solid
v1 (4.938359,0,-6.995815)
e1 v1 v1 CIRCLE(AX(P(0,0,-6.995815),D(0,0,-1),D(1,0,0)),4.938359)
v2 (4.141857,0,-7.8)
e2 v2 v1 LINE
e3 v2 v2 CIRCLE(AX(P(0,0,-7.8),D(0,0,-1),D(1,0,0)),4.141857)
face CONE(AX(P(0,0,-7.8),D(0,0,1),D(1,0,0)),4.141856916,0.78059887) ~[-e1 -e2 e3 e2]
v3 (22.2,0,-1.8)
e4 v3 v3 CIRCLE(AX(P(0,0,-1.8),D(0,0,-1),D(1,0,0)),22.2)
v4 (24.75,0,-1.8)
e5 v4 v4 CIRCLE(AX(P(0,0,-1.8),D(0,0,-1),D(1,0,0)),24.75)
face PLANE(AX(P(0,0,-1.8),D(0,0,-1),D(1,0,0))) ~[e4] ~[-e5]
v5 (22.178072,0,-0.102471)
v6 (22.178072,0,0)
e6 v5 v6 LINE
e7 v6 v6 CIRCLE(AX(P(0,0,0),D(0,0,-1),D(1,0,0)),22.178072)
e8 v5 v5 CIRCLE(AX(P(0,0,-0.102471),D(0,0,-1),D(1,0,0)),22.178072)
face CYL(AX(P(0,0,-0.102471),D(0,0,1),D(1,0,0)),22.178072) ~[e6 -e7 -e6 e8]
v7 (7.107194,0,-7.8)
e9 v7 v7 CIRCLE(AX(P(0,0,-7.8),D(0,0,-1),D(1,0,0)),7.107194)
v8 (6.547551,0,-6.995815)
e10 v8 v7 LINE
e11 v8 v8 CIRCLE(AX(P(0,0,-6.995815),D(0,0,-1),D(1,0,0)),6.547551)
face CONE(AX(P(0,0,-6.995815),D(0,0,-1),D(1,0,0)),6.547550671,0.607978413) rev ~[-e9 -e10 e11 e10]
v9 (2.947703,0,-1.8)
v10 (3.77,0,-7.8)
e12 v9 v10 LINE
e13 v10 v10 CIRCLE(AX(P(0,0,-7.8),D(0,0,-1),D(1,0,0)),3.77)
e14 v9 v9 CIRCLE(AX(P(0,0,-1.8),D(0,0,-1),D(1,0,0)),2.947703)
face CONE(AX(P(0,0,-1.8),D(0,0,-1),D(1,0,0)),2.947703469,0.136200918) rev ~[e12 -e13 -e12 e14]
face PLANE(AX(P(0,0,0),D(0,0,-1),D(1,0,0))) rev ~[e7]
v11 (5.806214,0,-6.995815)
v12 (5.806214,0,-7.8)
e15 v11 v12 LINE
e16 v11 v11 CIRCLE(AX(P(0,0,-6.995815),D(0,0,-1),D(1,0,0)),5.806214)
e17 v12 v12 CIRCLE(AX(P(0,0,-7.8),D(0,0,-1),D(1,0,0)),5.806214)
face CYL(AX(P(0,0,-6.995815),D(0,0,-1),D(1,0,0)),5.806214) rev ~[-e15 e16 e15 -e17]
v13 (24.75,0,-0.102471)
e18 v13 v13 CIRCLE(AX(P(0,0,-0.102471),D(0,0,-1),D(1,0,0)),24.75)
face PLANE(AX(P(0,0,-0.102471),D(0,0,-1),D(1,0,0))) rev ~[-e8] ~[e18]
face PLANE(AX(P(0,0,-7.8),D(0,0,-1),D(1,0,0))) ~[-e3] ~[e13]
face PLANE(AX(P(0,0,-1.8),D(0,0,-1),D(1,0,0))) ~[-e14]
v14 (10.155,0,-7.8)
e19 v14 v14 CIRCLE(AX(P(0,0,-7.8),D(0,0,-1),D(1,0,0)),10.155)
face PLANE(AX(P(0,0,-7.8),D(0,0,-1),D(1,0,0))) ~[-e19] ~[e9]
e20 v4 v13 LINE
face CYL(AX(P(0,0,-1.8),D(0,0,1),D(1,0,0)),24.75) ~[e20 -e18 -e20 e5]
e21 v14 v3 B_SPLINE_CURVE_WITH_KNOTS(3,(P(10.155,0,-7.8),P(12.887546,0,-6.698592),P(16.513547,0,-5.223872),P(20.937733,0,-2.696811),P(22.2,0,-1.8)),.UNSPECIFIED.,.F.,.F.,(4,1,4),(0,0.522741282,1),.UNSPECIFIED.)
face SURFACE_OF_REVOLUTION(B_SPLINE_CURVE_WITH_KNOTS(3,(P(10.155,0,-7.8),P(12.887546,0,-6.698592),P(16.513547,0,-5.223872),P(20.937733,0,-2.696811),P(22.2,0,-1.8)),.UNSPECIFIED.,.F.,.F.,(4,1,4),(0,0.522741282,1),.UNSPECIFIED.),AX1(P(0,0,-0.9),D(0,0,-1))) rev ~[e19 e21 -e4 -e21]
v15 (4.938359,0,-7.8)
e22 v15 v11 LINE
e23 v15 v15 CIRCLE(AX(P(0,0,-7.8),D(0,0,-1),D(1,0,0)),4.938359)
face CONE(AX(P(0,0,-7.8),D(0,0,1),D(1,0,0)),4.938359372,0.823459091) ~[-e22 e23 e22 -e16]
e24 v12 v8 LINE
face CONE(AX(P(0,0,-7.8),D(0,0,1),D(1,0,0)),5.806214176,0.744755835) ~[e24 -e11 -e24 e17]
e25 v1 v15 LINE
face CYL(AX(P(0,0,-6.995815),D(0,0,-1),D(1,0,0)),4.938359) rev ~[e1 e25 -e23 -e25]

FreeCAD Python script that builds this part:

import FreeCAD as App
import Part
import Sketcher
from FreeCAD import Vector

doc = App.newDocument("Part")
body = doc.addObject("PartDesign::Body", "Body")

sketch1 = body.newObject("Sketcher::SketchObject", "Sketch")
sketch1.AttachmentSupport = (doc.getObject("XZ_Plane"), [""])
sketch1.MapMode = "FlatFace"
sketch1.addGeometry([
    Part.LineSegment(Vector(22.178072, 0, 0), Vector(0, 0, 0)),
    Part.LineSegment(Vector(0, 0, 0), Vector(0, -1.8, 0)),
    Part.LineSegment(Vector(0, -1.8, 0), Vector(2.947703, -1.8, 0)),
    Part.LineSegment(Vector(2.947703, -1.8, 0), Vector(3.77, -7.8, 0)),
    Part.LineSegment(Vector(3.77, -7.8, 0), Vector(4.141857, -7.8, 0)),
    Part.LineSegment(Vector(4.141857, -7.8, 0), Vector(4.938359, -6.995815, 0)),
    Part.LineSegment(Vector(4.938359, -6.995815, 0), Vector(4.938359, -7.8, 0)),
    Part.LineSegment(Vector(4.938359, -7.8, 0), Vector(5.806214, -6.995815, 0)),
    Part.LineSegment(Vector(5.806214, -6.995815, 0), Vector(5.806214, -7.8, 0)),
    Part.LineSegment(Vector(5.806214, -7.8, 0), Vector(6.547551, -6.995815, 0)),
    Part.LineSegment(Vector(6.547551, -6.995815, 0), Vector(7.107194, -7.8, 0)),
    Part.LineSegment(Vector(7.107194, -7.8, 0), Vector(10.155, -7.8, 0)),
    Part.BSplineCurve([Vector(10.155, -7.8, 0), Vector(12.887546, -6.698592, 0), Vector(16.513547, -5.223872, 0), Vector(20.937733, -2.696811, 0), Vector(22.2, -1.8, 0)], [4, 1, 4], [0, 0.522741282, 1], False, 3, [1, 1, 1, 1, 1], False),
    Part.LineSegment(Vector(22.2, -1.8, 0), Vector(24.75, -1.8, 0)),
    Part.LineSegment(Vector(24.75, -1.8, 0), Vector(24.75, -0.102471, 0)),
    Part.LineSegment(Vector(24.75, -0.102471, 0), Vector(22.178072, -0.102471, 0)),
    Part.LineSegment(Vector(22.178072, -0.102471, 0), Vector(22.178072, 0, 0)),
], False)
sketch1.addConstraint([
    Sketcher.Constraint("Block", 12),
    Sketcher.Constraint("Coincident", 0, 2, 1, 1),
    Sketcher.Constraint("Coincident", 1, 2, 2, 1),
    Sketcher.Constraint("Coincident", 2, 2, 3, 1),
    Sketcher.Constraint("Coincident", 3, 2, 4, 1),
    Sketcher.Constraint("Coincident", 4, 2, 5, 1),
    Sketcher.Constraint("Coincident", 5, 2, 6, 1),
    Sketcher.Constraint("Coincident", 6, 2, 7, 1),
    Sketcher.Constraint("Coincident", 7, 2, 8, 1),
    Sketcher.Constraint("Coincident", 8, 2, 9, 1),
    Sketcher.Constraint("Coincident", 9, 2, 10, 1),
    Sketcher.Constraint("Coincident", 10, 2, 11, 1),
    Sketcher.Constraint("Coincident", 11, 2, 12, 1),
    Sketcher.Constraint("Coincident", 12, 2, 13, 1),
    Sketcher.Constraint("Coincident", 13, 2, 14, 1),
    Sketcher.Constraint("Coincident", 14, 2, 15, 1),
    Sketcher.Constraint("Coincident", 15, 2, 16, 1),
    Sketcher.Constraint("Coincident", 16, 2, 0, 1),
    Sketcher.Constraint("Horizontal", 0),
    Sketcher.Constraint("Vertical", 1),
    Sketcher.Constraint("Horizontal", 2),
    Sketcher.Constraint("Horizontal", 4),
    Sketcher.Constraint("Vertical", 6),
    Sketcher.Constraint("Vertical", 8),
    Sketcher.Constraint("Horizontal", 11),
    Sketcher.Constraint("Horizontal", 13),
    Sketcher.Constraint("Vertical", 14),
    Sketcher.Constraint("Horizontal", 15),
    Sketcher.Constraint("Vertical", 16),
    Sketcher.Constraint("Coincident", 0, 2, -1, 1),
    Sketcher.Constraint("Horizontal", 4, 2, 6, 2),
    Sketcher.Constraint("Horizontal", 5, 2, 7, 2),
    Sketcher.Constraint("Horizontal", 6, 2, 8, 2),
    Sketcher.Constraint("Horizontal", 7, 2, 9, 2),
    Sketcher.Constraint("Horizontal", 8, 2, 10, 2),
    Sketcher.Constraint("Horizontal", 2, 2, 13, 2),
    Sketcher.Constraint("DistanceX", 13, 1, 13, 2, 2.55),
    Sketcher.Constraint("DistanceX", -1, 1, 3, 2, 3.77),
    Sketcher.Constraint("DistanceY", 14, 1, 14, 2, 1.697529),
    Sketcher.Constraint("Distance", 5, 1.13187),
    Sketcher.Constraint("Distance", 9, 1.093752),
    Sketcher.Constraint("Distance", 10, 0.979752),
    Sketcher.Constraint("DistanceX", 0, 2, 0, 1, 22.178072),
    Sketcher.Constraint("DistanceX", 2, 1, 2, 2, 2.947703),
    Sketcher.Constraint("DistanceX", 4, 1, 4, 2, 0.371857),
    Sketcher.Constraint("DistanceX", 11, 1, 11, 2, 3.047806),
    Sketcher.Constraint("DistanceY", 6, 2, 6, 1, 0.804185),
])
revolution = body.newObject("PartDesign::Revolution", "Revolution")
revolution.Profile = sketch1
revolution.ReferenceAxis = (sketch1, ["V_Axis"])
revolution.Angle = 360

doc.recompute()
